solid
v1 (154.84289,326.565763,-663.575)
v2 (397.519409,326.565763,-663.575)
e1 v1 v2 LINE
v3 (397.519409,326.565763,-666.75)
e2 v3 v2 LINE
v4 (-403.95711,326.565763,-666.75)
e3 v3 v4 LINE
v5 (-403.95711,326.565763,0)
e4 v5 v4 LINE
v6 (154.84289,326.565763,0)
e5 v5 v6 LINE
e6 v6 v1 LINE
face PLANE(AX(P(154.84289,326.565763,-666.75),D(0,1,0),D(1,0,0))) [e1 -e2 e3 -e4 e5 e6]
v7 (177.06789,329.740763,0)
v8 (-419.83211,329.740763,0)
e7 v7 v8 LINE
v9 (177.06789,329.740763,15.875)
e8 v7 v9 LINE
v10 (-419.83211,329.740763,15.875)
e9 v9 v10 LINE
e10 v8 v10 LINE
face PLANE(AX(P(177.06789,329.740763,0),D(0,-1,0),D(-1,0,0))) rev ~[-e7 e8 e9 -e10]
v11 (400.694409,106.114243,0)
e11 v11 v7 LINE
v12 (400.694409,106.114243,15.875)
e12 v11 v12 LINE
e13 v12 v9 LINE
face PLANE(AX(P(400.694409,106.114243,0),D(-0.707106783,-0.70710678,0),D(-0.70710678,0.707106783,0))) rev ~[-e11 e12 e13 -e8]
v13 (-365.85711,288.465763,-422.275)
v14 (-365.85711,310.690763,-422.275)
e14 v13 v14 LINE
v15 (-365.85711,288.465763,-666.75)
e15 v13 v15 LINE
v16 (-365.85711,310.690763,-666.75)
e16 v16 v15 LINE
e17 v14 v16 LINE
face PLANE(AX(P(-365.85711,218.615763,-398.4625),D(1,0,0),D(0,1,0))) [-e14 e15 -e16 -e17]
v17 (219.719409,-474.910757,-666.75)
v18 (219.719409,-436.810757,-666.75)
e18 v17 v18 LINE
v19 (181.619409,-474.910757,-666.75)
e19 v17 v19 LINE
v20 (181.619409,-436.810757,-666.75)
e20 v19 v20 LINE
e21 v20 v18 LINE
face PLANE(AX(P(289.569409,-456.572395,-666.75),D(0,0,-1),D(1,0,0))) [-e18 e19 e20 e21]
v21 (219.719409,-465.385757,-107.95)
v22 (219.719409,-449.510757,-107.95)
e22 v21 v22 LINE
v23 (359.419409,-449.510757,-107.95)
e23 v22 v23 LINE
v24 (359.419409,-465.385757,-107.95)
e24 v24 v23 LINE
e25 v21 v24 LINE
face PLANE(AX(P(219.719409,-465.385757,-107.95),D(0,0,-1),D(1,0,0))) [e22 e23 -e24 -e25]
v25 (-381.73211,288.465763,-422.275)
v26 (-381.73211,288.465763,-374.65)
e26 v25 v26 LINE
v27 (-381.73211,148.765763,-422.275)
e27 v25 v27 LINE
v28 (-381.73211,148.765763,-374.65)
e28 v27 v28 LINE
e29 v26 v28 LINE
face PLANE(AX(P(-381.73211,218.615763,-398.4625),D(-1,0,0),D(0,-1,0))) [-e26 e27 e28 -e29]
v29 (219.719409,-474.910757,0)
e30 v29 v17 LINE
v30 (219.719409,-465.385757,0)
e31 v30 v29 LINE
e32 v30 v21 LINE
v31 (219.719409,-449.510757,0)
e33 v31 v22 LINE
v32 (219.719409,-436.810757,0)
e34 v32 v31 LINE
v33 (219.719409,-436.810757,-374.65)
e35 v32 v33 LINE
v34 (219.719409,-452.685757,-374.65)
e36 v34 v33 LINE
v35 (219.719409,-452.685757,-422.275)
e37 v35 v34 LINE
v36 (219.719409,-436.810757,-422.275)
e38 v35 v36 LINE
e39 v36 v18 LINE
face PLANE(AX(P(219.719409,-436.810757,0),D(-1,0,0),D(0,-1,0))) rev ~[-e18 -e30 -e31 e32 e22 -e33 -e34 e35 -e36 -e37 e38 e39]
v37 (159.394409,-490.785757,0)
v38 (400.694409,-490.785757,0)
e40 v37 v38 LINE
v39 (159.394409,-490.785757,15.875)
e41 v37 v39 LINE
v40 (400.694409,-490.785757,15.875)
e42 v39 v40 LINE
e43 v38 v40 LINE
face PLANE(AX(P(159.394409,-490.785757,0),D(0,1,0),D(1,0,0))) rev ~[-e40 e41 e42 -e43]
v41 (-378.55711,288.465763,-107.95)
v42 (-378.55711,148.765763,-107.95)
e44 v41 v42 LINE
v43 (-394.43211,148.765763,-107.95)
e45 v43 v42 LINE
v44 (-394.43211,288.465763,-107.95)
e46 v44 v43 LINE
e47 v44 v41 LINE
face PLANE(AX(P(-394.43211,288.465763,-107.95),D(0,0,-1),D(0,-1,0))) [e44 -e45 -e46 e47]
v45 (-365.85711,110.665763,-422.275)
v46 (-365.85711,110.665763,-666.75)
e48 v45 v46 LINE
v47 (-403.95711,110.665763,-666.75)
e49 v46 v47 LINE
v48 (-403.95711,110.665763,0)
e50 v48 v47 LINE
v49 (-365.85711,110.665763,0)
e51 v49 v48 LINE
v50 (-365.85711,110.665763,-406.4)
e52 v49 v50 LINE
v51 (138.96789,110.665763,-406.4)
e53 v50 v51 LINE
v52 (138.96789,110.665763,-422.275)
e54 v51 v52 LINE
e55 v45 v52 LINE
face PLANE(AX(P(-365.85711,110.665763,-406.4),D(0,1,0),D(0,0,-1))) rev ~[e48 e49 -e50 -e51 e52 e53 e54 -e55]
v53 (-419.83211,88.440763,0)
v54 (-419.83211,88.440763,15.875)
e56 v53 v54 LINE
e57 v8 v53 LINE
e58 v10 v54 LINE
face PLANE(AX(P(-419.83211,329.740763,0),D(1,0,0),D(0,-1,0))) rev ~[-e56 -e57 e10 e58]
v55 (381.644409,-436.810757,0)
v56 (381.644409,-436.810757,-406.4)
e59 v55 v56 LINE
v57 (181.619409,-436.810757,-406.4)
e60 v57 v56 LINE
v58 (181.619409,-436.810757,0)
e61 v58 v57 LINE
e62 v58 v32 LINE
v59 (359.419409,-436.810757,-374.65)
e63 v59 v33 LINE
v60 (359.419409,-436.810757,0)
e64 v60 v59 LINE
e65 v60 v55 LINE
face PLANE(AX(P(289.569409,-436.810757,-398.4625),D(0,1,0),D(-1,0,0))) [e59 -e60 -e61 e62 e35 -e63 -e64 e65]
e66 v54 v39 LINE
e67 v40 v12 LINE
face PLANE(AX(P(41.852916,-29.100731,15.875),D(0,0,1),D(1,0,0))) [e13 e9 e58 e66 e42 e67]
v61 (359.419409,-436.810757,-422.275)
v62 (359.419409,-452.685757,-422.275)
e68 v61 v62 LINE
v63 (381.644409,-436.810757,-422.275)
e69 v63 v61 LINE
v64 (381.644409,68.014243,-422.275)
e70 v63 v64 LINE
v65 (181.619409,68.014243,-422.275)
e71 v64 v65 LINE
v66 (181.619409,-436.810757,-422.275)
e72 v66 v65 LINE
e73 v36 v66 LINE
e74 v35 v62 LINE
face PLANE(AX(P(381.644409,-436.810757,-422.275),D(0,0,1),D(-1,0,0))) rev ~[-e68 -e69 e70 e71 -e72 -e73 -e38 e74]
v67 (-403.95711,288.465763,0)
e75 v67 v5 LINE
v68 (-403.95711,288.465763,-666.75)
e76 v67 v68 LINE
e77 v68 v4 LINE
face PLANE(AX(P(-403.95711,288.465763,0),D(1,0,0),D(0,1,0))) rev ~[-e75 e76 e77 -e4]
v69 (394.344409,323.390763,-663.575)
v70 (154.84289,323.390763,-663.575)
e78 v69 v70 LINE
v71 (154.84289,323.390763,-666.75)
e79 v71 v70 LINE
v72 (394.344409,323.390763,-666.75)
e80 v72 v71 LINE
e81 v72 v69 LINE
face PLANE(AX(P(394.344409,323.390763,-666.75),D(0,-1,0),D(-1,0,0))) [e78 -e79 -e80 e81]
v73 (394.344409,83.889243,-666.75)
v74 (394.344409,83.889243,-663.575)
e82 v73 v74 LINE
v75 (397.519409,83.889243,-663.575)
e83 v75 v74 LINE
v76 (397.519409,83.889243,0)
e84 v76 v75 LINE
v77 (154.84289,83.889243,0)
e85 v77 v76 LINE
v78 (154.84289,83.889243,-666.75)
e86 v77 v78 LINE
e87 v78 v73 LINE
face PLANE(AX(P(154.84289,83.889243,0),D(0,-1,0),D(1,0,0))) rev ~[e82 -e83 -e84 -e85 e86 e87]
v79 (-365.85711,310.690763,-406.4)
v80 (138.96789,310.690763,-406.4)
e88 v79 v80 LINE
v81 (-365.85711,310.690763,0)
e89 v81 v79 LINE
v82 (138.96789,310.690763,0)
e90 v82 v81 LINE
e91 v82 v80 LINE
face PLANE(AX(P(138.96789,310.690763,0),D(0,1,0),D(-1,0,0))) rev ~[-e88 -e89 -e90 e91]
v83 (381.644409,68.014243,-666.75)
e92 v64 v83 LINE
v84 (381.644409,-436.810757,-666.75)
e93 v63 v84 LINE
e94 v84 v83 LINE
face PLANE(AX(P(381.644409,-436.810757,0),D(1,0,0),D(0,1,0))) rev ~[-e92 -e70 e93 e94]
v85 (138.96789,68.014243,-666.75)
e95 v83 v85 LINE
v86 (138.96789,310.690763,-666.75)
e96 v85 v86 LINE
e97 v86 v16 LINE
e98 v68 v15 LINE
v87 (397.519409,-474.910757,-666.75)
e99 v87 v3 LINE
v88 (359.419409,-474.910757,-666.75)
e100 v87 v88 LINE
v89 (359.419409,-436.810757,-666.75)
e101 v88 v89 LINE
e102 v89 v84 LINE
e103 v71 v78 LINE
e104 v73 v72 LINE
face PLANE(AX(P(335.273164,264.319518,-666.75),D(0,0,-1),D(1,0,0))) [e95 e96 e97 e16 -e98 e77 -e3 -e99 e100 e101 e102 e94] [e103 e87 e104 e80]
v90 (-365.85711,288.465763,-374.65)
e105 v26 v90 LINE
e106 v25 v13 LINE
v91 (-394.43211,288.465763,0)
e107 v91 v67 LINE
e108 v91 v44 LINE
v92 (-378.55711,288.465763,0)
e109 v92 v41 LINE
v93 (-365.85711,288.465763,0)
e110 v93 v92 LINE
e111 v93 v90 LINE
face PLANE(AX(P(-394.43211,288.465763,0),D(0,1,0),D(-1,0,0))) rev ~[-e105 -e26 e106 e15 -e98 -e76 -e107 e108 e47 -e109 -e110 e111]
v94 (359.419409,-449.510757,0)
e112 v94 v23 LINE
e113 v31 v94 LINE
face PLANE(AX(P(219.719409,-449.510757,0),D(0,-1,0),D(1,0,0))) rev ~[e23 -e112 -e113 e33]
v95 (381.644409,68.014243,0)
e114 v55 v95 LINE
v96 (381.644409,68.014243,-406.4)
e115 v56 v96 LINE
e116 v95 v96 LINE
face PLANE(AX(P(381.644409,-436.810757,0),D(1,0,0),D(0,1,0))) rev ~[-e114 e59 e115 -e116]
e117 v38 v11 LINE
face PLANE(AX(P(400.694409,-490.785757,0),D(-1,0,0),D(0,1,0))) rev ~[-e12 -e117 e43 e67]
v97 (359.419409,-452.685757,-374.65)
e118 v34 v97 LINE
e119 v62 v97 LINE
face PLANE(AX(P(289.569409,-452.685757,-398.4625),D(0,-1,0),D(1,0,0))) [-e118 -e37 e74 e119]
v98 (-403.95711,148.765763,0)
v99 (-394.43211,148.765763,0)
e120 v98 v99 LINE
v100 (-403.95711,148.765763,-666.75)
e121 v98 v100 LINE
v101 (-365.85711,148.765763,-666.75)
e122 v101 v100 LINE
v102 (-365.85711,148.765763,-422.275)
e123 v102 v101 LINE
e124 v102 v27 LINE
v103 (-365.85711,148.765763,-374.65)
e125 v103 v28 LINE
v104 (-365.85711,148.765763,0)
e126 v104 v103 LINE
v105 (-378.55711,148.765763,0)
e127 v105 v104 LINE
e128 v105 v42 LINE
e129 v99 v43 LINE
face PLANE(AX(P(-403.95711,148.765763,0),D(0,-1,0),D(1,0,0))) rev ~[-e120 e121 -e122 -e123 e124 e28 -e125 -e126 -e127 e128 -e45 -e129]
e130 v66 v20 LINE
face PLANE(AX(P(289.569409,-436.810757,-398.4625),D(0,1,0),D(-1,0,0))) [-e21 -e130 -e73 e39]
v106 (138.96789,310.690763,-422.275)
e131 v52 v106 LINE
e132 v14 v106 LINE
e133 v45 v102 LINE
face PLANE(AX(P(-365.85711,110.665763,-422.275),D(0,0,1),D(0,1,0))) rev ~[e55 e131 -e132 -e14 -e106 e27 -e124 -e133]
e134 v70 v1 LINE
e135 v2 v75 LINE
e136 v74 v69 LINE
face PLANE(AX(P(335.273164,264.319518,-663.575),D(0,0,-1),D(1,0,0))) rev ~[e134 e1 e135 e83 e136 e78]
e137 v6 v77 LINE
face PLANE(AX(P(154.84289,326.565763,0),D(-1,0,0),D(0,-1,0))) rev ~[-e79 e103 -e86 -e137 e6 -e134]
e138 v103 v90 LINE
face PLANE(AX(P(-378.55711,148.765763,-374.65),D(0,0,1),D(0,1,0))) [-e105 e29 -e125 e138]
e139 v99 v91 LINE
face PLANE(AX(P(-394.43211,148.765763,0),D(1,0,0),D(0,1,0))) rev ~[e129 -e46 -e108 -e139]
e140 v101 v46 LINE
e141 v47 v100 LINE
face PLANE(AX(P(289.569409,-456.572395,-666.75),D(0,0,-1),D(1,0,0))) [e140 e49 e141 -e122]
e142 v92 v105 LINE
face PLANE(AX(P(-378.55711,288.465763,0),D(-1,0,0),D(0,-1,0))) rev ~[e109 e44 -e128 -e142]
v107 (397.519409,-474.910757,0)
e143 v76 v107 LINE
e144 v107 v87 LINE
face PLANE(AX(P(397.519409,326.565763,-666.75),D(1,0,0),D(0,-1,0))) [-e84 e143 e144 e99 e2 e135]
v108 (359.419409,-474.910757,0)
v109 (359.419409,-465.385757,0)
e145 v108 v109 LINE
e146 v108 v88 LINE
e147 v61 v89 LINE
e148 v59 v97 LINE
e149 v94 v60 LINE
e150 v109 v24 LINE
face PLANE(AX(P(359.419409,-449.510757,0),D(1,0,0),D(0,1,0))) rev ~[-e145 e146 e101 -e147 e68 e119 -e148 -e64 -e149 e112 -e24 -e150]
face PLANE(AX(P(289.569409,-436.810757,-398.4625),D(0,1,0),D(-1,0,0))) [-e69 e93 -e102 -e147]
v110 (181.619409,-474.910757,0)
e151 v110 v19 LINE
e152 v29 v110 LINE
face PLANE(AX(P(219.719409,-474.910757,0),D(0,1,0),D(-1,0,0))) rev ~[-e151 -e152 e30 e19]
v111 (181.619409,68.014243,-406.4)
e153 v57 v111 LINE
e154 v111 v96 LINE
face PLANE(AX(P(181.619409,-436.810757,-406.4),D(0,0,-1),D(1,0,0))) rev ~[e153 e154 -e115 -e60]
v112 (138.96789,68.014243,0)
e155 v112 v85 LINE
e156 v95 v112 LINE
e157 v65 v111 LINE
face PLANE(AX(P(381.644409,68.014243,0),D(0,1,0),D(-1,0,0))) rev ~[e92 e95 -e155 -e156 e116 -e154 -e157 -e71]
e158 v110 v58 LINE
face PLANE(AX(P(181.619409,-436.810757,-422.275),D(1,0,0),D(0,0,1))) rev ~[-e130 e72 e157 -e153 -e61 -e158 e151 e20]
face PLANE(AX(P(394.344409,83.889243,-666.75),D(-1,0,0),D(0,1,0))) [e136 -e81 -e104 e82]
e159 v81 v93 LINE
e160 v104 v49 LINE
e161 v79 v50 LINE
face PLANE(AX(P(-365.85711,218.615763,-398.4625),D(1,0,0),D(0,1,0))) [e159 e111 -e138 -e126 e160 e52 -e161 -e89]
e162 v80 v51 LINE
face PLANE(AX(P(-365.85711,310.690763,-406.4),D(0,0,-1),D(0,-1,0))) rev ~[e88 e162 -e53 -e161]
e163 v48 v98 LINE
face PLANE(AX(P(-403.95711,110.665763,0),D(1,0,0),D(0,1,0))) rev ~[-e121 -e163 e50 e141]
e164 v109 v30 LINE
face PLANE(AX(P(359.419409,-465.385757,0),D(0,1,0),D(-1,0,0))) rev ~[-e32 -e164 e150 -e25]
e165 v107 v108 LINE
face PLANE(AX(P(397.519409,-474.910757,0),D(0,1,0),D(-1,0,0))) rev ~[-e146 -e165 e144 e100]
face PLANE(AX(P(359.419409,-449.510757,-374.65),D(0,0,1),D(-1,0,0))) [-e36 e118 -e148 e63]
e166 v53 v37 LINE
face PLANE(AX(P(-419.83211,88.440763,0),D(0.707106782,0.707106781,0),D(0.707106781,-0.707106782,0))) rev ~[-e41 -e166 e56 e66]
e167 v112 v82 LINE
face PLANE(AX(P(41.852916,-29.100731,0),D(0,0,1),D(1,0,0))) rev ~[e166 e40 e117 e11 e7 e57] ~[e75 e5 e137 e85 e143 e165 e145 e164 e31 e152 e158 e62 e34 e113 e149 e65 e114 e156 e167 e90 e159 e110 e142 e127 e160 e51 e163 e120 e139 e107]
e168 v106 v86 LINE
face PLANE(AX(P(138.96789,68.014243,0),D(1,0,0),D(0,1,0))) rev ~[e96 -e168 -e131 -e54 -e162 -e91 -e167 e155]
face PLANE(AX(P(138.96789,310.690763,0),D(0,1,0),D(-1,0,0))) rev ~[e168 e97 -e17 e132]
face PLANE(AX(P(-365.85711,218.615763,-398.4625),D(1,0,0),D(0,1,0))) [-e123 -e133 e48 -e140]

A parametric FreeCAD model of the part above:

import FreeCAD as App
import Part
import Sketcher
Q = App.Units.Quantity

doc = App.newDocument("Part")
body = doc.addObject("PartDesign::Body", "Body")

# Sketch on XY plane
sketch1 = body.newObject("Sketcher::SketchObject", "Sketch")
sketch1.AttachmentSupport = (doc.getObject("XY_Plane"), [""])
sketch1.MapMode = "FlatFace"
sketch1.addGeometry(Part.LineSegment(App.Vector(177, 330, 0), App.Vector(-420, 330, 0)), False)
sketch1.addGeometry(Part.LineSegment(App.Vector(-420, 330, 0), App.Vector(-420, 88, 0)), False)
sketch1.addGeometry(Part.LineSegment(App.Vector(-420, 88, 0), App.Vector(159, -491, 0)), False)
sketch1.addGeometry(Part.LineSegment(App.Vector(159, -491, 0), App.Vector(401, -491, 0)), False)
sketch1.addGeometry(Part.LineSegment(App.Vector(401, -491, 0), App.Vector(401, 106, 0)), False)
sketch1.addGeometry(Part.LineSegment(App.Vector(401, 106, 0), App.Vector(177, 330, 0)), False)
sketch1.addConstraint(Sketcher.Constraint("Coincident", 0, 2, 1, 1))
sketch1.addConstraint(Sketcher.Constraint("Coincident", 1, 2, 2, 1))
sketch1.addConstraint(Sketcher.Constraint("Coincident", 2, 2, 3, 1))
sketch1.addConstraint(Sketcher.Constraint("Coincident", 3, 2, 4, 1))
sketch1.addConstraint(Sketcher.Constraint("Coincident", 4, 2, 5, 1))
sketch1.addConstraint(Sketcher.Constraint("Coincident", 5, 2, 0, 1))
sketch1.addConstraint(Sketcher.Constraint("Horizontal", 0))
sketch1.addConstraint(Sketcher.Constraint("Vertical", 1))
sketch1.addConstraint(Sketcher.Constraint("Horizontal", 3))
sketch1.addConstraint(Sketcher.Constraint("Vertical", 4))
sketch1.addConstraint(Sketcher.Constraint("Parallel", 2, 5))
sketch1.addConstraint(Sketcher.Constraint("Equal", 3, 1))
sketch1.addConstraint(Sketcher.Constraint("Equal", 0, 4))
sketch1.addConstraint(Sketcher.Constraint("DistanceX", 0, 2, 0, 1, Q("23.5 in")))
sketch1.addConstraint(Sketcher.Constraint("DistanceX", 3, 1, 3, 2, Q("9.5 in")))
sketch1.addConstraint(Sketcher.Constraint("Distance", 2, Q("32.25 in")))
sketch1.addConstraint(Sketcher.Constraint("DistanceX", 0, 2, -1, 1, 419.83211))
sketch1.addConstraint(Sketcher.Constraint("DistanceY", -1, 1, 0, 2, 329.740763))
pad1 = body.newObject("PartDesign::Pad", "Pad")
pad1.Profile = sketch1
pad1.Length = Q("0.625 in")

# Sketch on XY plane
sketch2 = body.newObject("Sketcher::SketchObject", "Sketch001")
sketch2.AttachmentSupport = (doc.getObject("XY_Plane"), [""])
sketch2.MapMode = "FlatFace"
sketch2.addGeometry(Part.LineSegment(App.Vector(398, -475, 0), App.Vector(359, -475, 0)), False)
sketch2.addGeometry(Part.LineSegment(App.Vector(359, -475, 0), App.Vector(359, -465, 0)), False)
sketch2.addGeometry(Part.LineSegment(App.Vector(359, -465, 0), App.Vector(220, -465, 0)), False)
sketch2.addGeometry(Part.LineSegment(App.Vector(220, -465, 0), App.Vector(220, -475, 0)), False)
sketch2.addGeometry(Part.LineSegment(App.Vector(220, -475, 0), App.Vector(182, -475, 0)), False)
sketch2.addGeometry(Part.LineSegment(App.Vector(182, -475, 0), App.Vector(182, -437, 0)), False)
sketch2.addGeometry(Part.LineSegment(App.Vector(182, -437, 0), App.Vector(220, -437, 0)), False)
sketch2.addGeometry(Part.LineSegment(App.Vector(220, -437, 0), App.Vector(220, -450, 0)), False)
sketch2.addGeometry(Part.LineSegment(App.Vector(220, -450, 0), App.Vector(359, -450, 0)), False)
sketch2.addGeometry(Part.LineSegment(App.Vector(359, -450, 0), App.Vector(359, -437, 0)), False)
sketch2.addGeometry(Part.LineSegment(App.Vector(359, -437, 0), App.Vector(382, -437, 0)), False)
sketch2.addGeometry(Part.LineSegment(App.Vector(382, -437, 0), App.Vector(382, 68, 0)), False)
sketch2.addGeometry(Part.LineSegment(App.Vector(382, 68, 0), App.Vector(139, 68, 0)), False)
sketch2.addGeometry(Part.LineSegment(App.Vector(139, 68, 0), App.Vector(139, 311, 0)), False)
sketch2.addGeometry(Part.LineSegment(App.Vector(139, 311, 0), App.Vector(-366, 311, 0)), False)
sketch2.addGeometry(Part.LineSegment(App.Vector(-366, 311, 0), App.Vector(-366, 288, 0)), False)
sketch2.addGeometry(Part.LineSegment(App.Vector(-366, 288, 0), App.Vector(-379, 288, 0)), False)
sketch2.addGeometry(Part.LineSegment(App.Vector(-379, 288, 0), App.Vector(-379, 149, 0)), False)
sketch2.addGeometry(Part.LineSegment(App.Vector(-379, 149, 0), App.Vector(-366, 149, 0)), False)
sketch2.addGeometry(Part.LineSegment(App.Vector(-366, 149, 0), App.Vector(-366, 111, 0)), False)
sketch2.addGeometry(Part.LineSegment(App.Vector(-366, 111, 0), App.Vector(-404, 111, 0)), False)
sketch2.addGeometry(Part.LineSegment(App.Vector(-404, 111, 0), App.Vector(-404, 149, 0)), False)
sketch2.addGeometry(Part.LineSegment(App.Vector(-404, 149, 0), App.Vector(-394, 149, 0)), False)
sketch2.addGeometry(Part.LineSegment(App.Vector(-394, 149, 0), App.Vector(-394, 288, 0)), False)
sketch2.addGeometry(Part.LineSegment(App.Vector(-394, 288, 0), App.Vector(-404, 288, 0)), False)
sketch2.addGeometry(Part.LineSegment(App.Vector(-404, 288, 0), App.Vector(-404, 327, 0)), False)
sketch2.addGeometry(Part.LineSegment(App.Vector(-404, 327, 0), App.Vector(155, 327, 0)), False)
sketch2.addGeometry(Part.LineSegment(App.Vector(155, 327, 0), App.Vector(155, 84, 0)), False)
sketch2.addGeometry(Part.LineSegment(App.Vector(155, 84, 0), App.Vector(398, 84, 0)), False)
sketch2.addGeometry(Part.LineSegment(App.Vector(398, 84, 0), App.Vector(398, -475, 0)), False)
sketch2.addConstraint(Sketcher.Constraint("Coincident", 0, 2, 1, 1))
sketch2.addConstraint(Sketcher.Constraint("Coincident", 1, 2, 2, 1))
sketch2.addConstraint(Sketcher.Constraint("Coincident", 2, 2, 3, 1))
sketch2.addConstraint(Sketcher.Constraint("Coincident", 3, 2, 4, 1))
sketch2.addConstraint(Sketcher.Constraint("Coincident", 4, 2, 5, 1))
sketch2.addConstraint(Sketcher.Constraint("Coincident", 5, 2, 6, 1))
sketch2.addConstraint(Sketcher.Constraint("Coincident", 6, 2, 7, 1))
sketch2.addConstraint(Sketcher.Constraint("Coincident", 7, 2, 8, 1))
sketch2.addConstraint(Sketcher.Constraint("Coincident", 8, 2, 9, 1))
sketch2.addConstraint(Sketcher.Constraint("Coincident", 9, 2, 10, 1))
sketch2.addConstraint(Sketcher.Constraint("Coincident", 10, 2, 11, 1))
sketch2.addConstraint(Sketcher.Constraint("Coincident", 11, 2, 12, 1))
sketch2.addConstraint(Sketcher.Constraint("Coincident", 12, 2, 13, 1))
sketch2.addConstraint(Sketcher.Constraint("Coincident", 13, 2, 14, 1))
sketch2.addConstraint(Sketcher.Constraint("Coincident", 14, 2, 15, 1))
sketch2.addConstraint(Sketcher.Constraint("Coincident", 15, 2, 16, 1))
sketch2.addConstraint(Sketcher.Constraint("Coincident", 16, 2, 17, 1))
sketch2.addConstraint(Sketcher.Constraint("Coincident", 17, 2, 18, 1))
sketch2.addConstraint(Sketcher.Constraint("Coincident", 18, 2, 19, 1))
sketch2.addConstraint(Sketcher.Constraint("Coincident", 19, 2, 20, 1))
sketch2.addConstraint(Sketcher.Constraint("Coincident", 20, 2, 21, 1))
sketch2.addConstraint(Sketcher.Constraint("Coincident", 21, 2, 22, 1))
sketch2.addConstraint(Sketcher.Constraint("Coincident", 22, 2, 23, 1))
sketch2.addConstraint(Sketcher.Constraint("Coincident", 23, 2, 24, 1))
sketch2.addConstraint(Sketcher.Constraint("Coincident", 24, 2, 25, 1))
sketch2.addConstraint(Sketcher.Constraint("Coincident", 25, 2, 26, 1))
sketch2.addConstraint(Sketcher.Constraint("Coincident", 26, 2, 27, 1))
sketch2.addConstraint(Sketcher.Constraint("Coincident", 27, 2, 28, 1))
sketch2.addConstraint(Sketcher.Constraint("Coincident", 28, 2, 29, 1))
sketch2.addConstraint(Sketcher.Constraint("Coincident", 29, 2, 0, 1))
sketch2.addConstraint(Sketcher.Constraint("Horizontal", 0))
sketch2.addConstraint(Sketcher.Constraint("Vertical", 1))
sketch2.addConstraint(Sketcher.Constraint("Horizontal", 2))
sketch2.addConstraint(Sketcher.Constraint("Vertical", 3))
sketch2.addConstraint(Sketcher.Constraint("Horizontal", 4))
sketch2.addConstraint(Sketcher.Constraint("Vertical", 5))
sketch2.addConstraint(Sketcher.Constraint("Horizontal", 6))
sketch2.addConstraint(Sketcher.Constraint("Vertical", 7))
sketch2.addConstraint(Sketcher.Constraint("Horizontal", 8))
sketch2.addConstraint(Sketcher.Constraint("Vertical", 9))
sketch2.addConstraint(Sketcher.Constraint("Horizontal", 10))
sketch2.addConstraint(Sketcher.Constraint("Vertical", 11))
sketch2.addConstraint(Sketcher.Constraint("Horizontal", 12))
sketch2.addConstraint(Sketcher.Constraint("Vertical", 13))
sketch2.addConstraint(Sketcher.Constraint("Horizontal", 14))
sketch2.addConstraint(Sketcher.Constraint("Vertical", 15))
sketch2.addConstraint(Sketcher.Constraint("Horizontal", 16))
sketch2.addConstraint(Sketcher.Constraint("Vertical", 17))
sketch2.addConstraint(Sketcher.Constraint("Horizontal", 18))
sketch2.addConstraint(Sketcher.Constraint("Vertical", 19))
sketch2.addConstraint(Sketcher.Constraint("Horizontal", 20))
sketch2.addConstraint(Sketcher.Constraint("Vertical", 21))
sketch2.addConstraint(Sketcher.Constraint("Horizontal", 22))
sketch2.addConstraint(Sketcher.Constraint("Vertical", 23))
sketch2.addConstraint(Sketcher.Constraint("Horizontal", 24))
sketch2.addConstraint(Sketcher.Constraint("Vertical", 25))
sketch2.addConstraint(Sketcher.Constraint("Horizontal", 26))
sketch2.addConstraint(Sketcher.Constraint("Vertical", 27))
sketch2.addConstraint(Sketcher.Constraint("Horizontal", 28))
sketch2.addConstraint(Sketcher.Constraint("Vertical", 29))
sketch2.addConstraint(Sketcher.Constraint("Horizontal", 0, 2, 3, 2))
sketch2.addConstraint(Sketcher.Constraint("Horizontal", 6, 2, 9, 2))
sketch2.addConstraint(Sketcher.Constraint("Horizontal", 18, 2, 21, 2))
sketch2.addConstraint(Sketcher.Constraint("Horizontal", 16, 2, 23, 2))
sketch2.addConstraint(Sketcher.Constraint("Vertical", 3, 2, 6, 2))
sketch2.addConstraint(Sketcher.Constraint("Vertical", 1, 2, 8, 2))
sketch2.addConstraint(Sketcher.Constraint("Vertical", 15, 2, 18, 2))
sketch2.addConstraint(Sketcher.Constraint("Vertical", 21, 2, 24, 2))
sketch2.addConstraint(Sketcher.Constraint("Equal", 0, 4))
sketch2.addConstraint(Sketcher.Constraint("Equal", 6, 20))
sketch2.addConstraint(Sketcher.Constraint("Equal", 12, 28))
sketch2.addConstraint(Sketcher.Constraint("Equal", 24, 1))
sketch2.addConstraint(Sketcher.Constraint("Equal", 20, 5))
sketch2.addConstraint(Sketcher.Constraint("Equal", 18, 7))
sketch2.addConstraint(Sketcher.Constraint("Equal", 14, 11))
sketch2.addConstraint(Sketcher.Constraint("Equal", 28, 13))
sketch2.addConstraint(Sketcher.Constraint("Equal", 10, 15))
sketch2.addConstraint(Sketcher.Constraint("Equal", 8, 17))
sketch2.addConstraint(Sketcher.Constraint("Equal", 5, 19))
sketch2.addConstraint(Sketcher.Constraint("Equal", 21, 25))
sketch2.addConstraint(Sketcher.Constraint("Equal", 13, 27))
sketch2.addConstraint(Sketcher.Constraint("DistanceX", 26, 1, 26, 2, Q("22 in")))
sketch2.addConstraint(Sketcher.Constraint("DistanceX", 0, 2, 0, 1, Q("1.5 in")))
sketch2.addConstraint(Sketcher.Constraint("DistanceX", 2, 2, 2, 1, Q("5.5 in")))
sketch2.addConstraint(Sketcher.Constraint("DistanceX", 16, 2, 16, 1, Q("0.5 in")))
sketch2.addConstraint(Sketcher.Constraint("DistanceY", 1, 2, 11, 2, Q("21 in")))
sketch2.addConstraint(Sketcher.Constraint("DistanceX", 10, 1, 10, 2, Q("0.875 in")))
sketch2.addConstraint(Sketcher.Constraint("DistanceX", 12, 2, 12, 1, 242.676519))
sketch2.addConstraint(Sketcher.Constraint("DistanceX", -1, 1, 0, 2, 359.419409))
sketch2.addConstraint(Sketcher.Constraint("DistanceY", 0, 2, -1, 1, 474.910757))
pad2 = body.newObject("PartDesign::Pad", "Pad001")
pad2.Profile = sketch2
pad2.Length = Q("26.25 in")
pad2.Reversed = True

# Sketch on YZ plane
sketch3 = body.newObject("Sketcher::SketchObject", "Sketch002")
sketch3.AttachmentSupport = (doc.getObject("YZ_Plane"), [""])
sketch3.MapMode = "FlatFace"
sketch3.AttachmentOffset = App.Placement(App.Vector(0, 0, -394.43211), App.Rotation())
sketch3.addGeometry(Part.LineSegment(App.Vector(288, -108, 0), App.Vector(288, -375, 0)), False)
sketch3.addGeometry(Part.LineSegment(App.Vector(288, -375, 0), App.Vector(149, -375, 0)), False)
sketch3.addGeometry(Part.LineSegment(App.Vector(149, -375, 0), App.Vector(149, -108, 0)), False)
sketch3.addGeometry(Part.LineSegment(App.Vector(149, -108, 0), App.Vector(288, -108, 0)), False)
sketch3.addGeometry(Part.LineSegment(App.Vector(288, -422, 0), App.Vector(288, -667, 0)), False)
sketch3.addGeometry(Part.LineSegment(App.Vector(288, -667, 0), App.Vector(149, -667, 0)), False)
sketch3.addGeometry(Part.LineSegment(App.Vector(149, -667, 0), App.Vector(149, -422, 0)), False)
sketch3.addGeometry(Part.LineSegment(App.Vector(149, -422, 0), App.Vector(288, -422, 0)), False)
sketch3.addConstraint(Sketcher.Constraint("Coincident", 0, 2, 1, 1))
sketch3.addConstraint(Sketcher.Constraint("Coincident", 1, 2, 2, 1))
sketch3.addConstraint(Sketcher.Constraint("Coincident", 2, 2, 3, 1))
sketch3.addConstraint(Sketcher.Constraint("Coincident", 3, 2, 0, 1))
sketch3.addConstraint(Sketcher.Constraint("Coincident", 4, 2, 5, 1))
sketch3.addConstraint(Sketcher.Constraint("Coincident", 5, 2, 6, 1))
sketch3.addConstraint(Sketcher.Constraint("Coincident", 6, 2, 7, 1))
sketch3.addConstraint(Sketcher.Constraint("Coincident", 7, 2, 4, 1))
sketch3.addConstraint(Sketcher.Constraint("Vertical", 0))
sketch3.addConstraint(Sketcher.Constraint("Horizontal", 1))
sketch3.addConstraint(Sketcher.Constraint("Vertical", 2))
sketch3.addConstraint(Sketcher.Constraint("Horizontal", 3))
sketch3.addConstraint(Sketcher.Constraint("Vertical", 4))
sketch3.addConstraint(Sketcher.Constraint("Horizontal", 5))
sketch3.addConstraint(Sketcher.Constraint("Vertical", 6))
sketch3.addConstraint(Sketcher.Constraint("Horizontal", 7))
sketch3.addConstraint(Sketcher.Constraint("Vertical", 3, 2, 4, 2))
sketch3.addConstraint(Sketcher.Constraint("Vertical", 2, 2, 5, 2))
sketch3.addConstraint(Sketcher.Constraint("DistanceX", 1, 2, 1, 1, Q("5.5 in")))
sketch3.addConstraint(Sketcher.Constraint("DistanceY", 0, 2, 0, 1, Q("10.5 in")))
sketch3.addConstraint(Sketcher.Constraint("DistanceY", 4, 2, 3, 2, Q("22 in")))
sketch3.addConstraint(Sketcher.Constraint("DistanceY", 4, 2, 4, 1, Q("9.625 in")))
sketch3.addConstraint(Sketcher.Constraint("DistanceY", 0, 2, -1, 1, Q("14.75 in")))
sketch3.addConstraint(Sketcher.Constraint("DistanceX", -1, 1, 0, 2, 288.465763))
pocket1 = body.newObject("PartDesign::Pocket", "Pocket")
pocket1.Profile = sketch3
pocket1.Length = Q("1 in")
pocket1.Reversed = True

# Sketch on YZ plane
sketch4 = body.newObject("Sketcher::SketchObject", "Sketch003")
sketch4.AttachmentSupport = (doc.getObject("YZ_Plane"), [""])
sketch4.MapMode = "FlatFace"
sketch4.AttachmentOffset = App.Placement(App.Vector(0, 0, -378.55711), App.Rotation())
sketch4.addGeometry(Part.LineSegment(App.Vector(149, -375, 0), App.Vector(149, -422, 0)), False)
sketch4.addGeometry(Part.LineSegment(App.Vector(149, -422, 0), App.Vector(288, -422, 0)), False)
sketch4.addGeometry(Part.LineSegment(App.Vector(288, -422, 0), App.Vector(288, -375, 0)), False)
sketch4.addGeometry(Part.LineSegment(App.Vector(288, -375, 0), App.Vector(149, -375, 0)), False)
sketch4.addConstraint(Sketcher.Constraint("Coincident", 0, 2, 1, 1))
sketch4.addConstraint(Sketcher.Constraint("Coincident", 1, 2, 2, 1))
sketch4.addConstraint(Sketcher.Constraint("Coincident", 2, 2, 3, 1))
sketch4.addConstraint(Sketcher.Constraint("Coincident", 3, 2, 0, 1))
sketch4.addConstraint(Sketcher.Constraint("Vertical", 0))
sketch4.addConstraint(Sketcher.Constraint("Horizontal", 1))
sketch4.addConstraint(Sketcher.Constraint("Vertical", 2))
sketch4.addConstraint(Sketcher.Constraint("Horizontal", 3))
sketch4.addConstraint(Sketcher.Constraint("DistanceX", 1, 1, 1, 2, Q("5.5 in")))
sketch4.addConstraint(Sketcher.Constraint("DistanceY", 0, 2, 0, 1, Q("1.875 in")))
sketch4.addConstraint(Sketcher.Constraint("DistanceY", 2, 2, -1, 1, Q("14.75 in")))
sketch4.addConstraint(Sketcher.Constraint("DistanceX", -1, 1, 0, 2, 148.765763))
pad3 = body.newObject("PartDesign::Pad", "Pad002")
pad3.Profile = sketch4
pad3.Length = Q("0.5 in")

# Sketch on YZ plane
sketch5 = body.newObject("Sketcher::SketchObject", "Sketch004")
sketch5.AttachmentSupport = (doc.getObject("YZ_Plane"), [""])
sketch5.MapMode = "FlatFace"
sketch5.AttachmentOffset = App.Placement(App.Vector(0, 0, -394.43211), App.Rotation())
sketch5.addGeometry(Part.LineSegment(App.Vector(288, -375, 0), App.Vector(288, -422, 0)), False)
sketch5.addGeometry(Part.LineSegment(App.Vector(288, -422, 0), App.Vector(149, -422, 0)), False)
sketch5.addGeometry(Part.LineSegment(App.Vector(149, -422, 0), App.Vector(149, -375, 0)), False)
sketch5.addGeometry(Part.LineSegment(App.Vector(149, -375, 0), App.Vector(288, -375, 0)), False)
sketch5.addConstraint(Sketcher.Constraint("Coincident", 0, 2, 1, 1))
sketch5.addConstraint(Sketcher.Constraint("Coincident", 1, 2, 2, 1))
sketch5.addConstraint(Sketcher.Constraint("Coincident", 2, 2, 3, 1))
sketch5.addConstraint(Sketcher.Constraint("Coincident", 3, 2, 0, 1))
sketch5.addConstraint(Sketcher.Constraint("Vertical", 0))
sketch5.addConstraint(Sketcher.Constraint("Horizontal", 1))
sketch5.addConstraint(Sketcher.Constraint("Vertical", 2))
sketch5.addConstraint(Sketcher.Constraint("Horizontal", 3))
sketch5.addConstraint(Sketcher.Constraint("DistanceX", 1, 2, 1, 1, Q("5.5 in")))
sketch5.addConstraint(Sketcher.Constraint("DistanceY", 0, 2, 0, 1, Q("1.875 in")))
sketch5.addConstraint(Sketcher.Constraint("DistanceY", 2, 2, -1, 1, Q("14.75 in")))
sketch5.addConstraint(Sketcher.Constraint("DistanceX", -1, 1, 0, 2, 288.465763))
pocket2 = body.newObject("PartDesign::Pocket", "Pocket001")
pocket2.Profile = sketch5
pocket2.Length = Q("0.5 in")
pocket2.Reversed = True

# Sketch on XZ plane
sketch6 = body.newObject("Sketcher::SketchObject", "Sketch005")
sketch6.AttachmentSupport = (doc.getObject("XZ_Plane"), [""])
sketch6.MapMode = "FlatFace"
sketch6.AttachmentOffset = App.Placement(App.Vector(0, 0, 465.385757), App.Rotation())
sketch6.addGeometry(Part.LineSegment(App.Vector(220, -108, 0), App.Vector(220, -375, 0)), False)
sketch6.addGeometry(Part.LineSegment(App.Vector(220, -375, 0), App.Vector(359, -375, 0)), False)
sketch6.addGeometry(Part.LineSegment(App.Vector(359, -375, 0), App.Vector(359, -108, 0)), False)
sketch6.addGeometry(Part.LineSegment(App.Vector(359, -108, 0), App.Vector(220, -108, 0)), False)
sketch6.addGeometry(Part.LineSegment(App.Vector(220, -422, 0), App.Vector(220, -667, 0)), False)
sketch6.addGeometry(Part.LineSegment(App.Vector(220, -667, 0), App.Vector(359, -667, 0)), False)
sketch6.addGeometry(Part.LineSegment(App.Vector(359, -667, 0), App.Vector(359, -422, 0)), False)
sketch6.addGeometry(Part.LineSegment(App.Vector(359, -422, 0), App.Vector(220, -422, 0)), False)
sketch6.addConstraint(Sketcher.Constraint("Coincident", 0, 2, 1, 1))
sketch6.addConstraint(Sketcher.Constraint("Coincident", 1, 2, 2, 1))
sketch6.addConstraint(Sketcher.Constraint("Coincident", 2, 2, 3, 1))
sketch6.addConstraint(Sketcher.Constraint("Coincident", 3, 2, 0, 1))
sketch6.addConstraint(Sketcher.Constraint("Coincident", 4, 2, 5, 1))
sketch6.addConstraint(Sketcher.Constraint("Coincident", 5, 2, 6, 1))
sketch6.addConstraint(Sketcher.Constraint("Coincident", 6, 2, 7, 1))
sketch6.addConstraint(Sketcher.Constraint("Coincident", 7, 2, 4, 1))
sketch6.addConstraint(Sketcher.Constraint("Vertical", 0))
sketch6.addConstraint(Sketcher.Constraint("Horizontal", 1))
sketch6.addConstraint(Sketcher.Constraint("Vertical", 2))
sketch6.addConstraint(Sketcher.Constraint("Horizontal", 3))
sketch6.addConstraint(Sketcher.Constraint("Vertical", 4))
sketch6.addConstraint(Sketcher.Constraint("Horizontal", 5))
sketch6.addConstraint(Sketcher.Constraint("Vertical", 6))
sketch6.addConstraint(Sketcher.Constraint("Horizontal", 7))
sketch6.addConstraint(Sketcher.Constraint("Vertical", 3, 2, 4, 2))
sketch6.addConstraint(Sketcher.Constraint("Vertical", 2, 2, 5, 2))
sketch6.addConstraint(Sketcher.Constraint("DistanceX", 1, 1, 1, 2, Q("5.5 in")))
sketch6.addConstraint(Sketcher.Constraint("DistanceY", 0, 2, 0, 1, Q("10.5 in")))
sketch6.addConstraint(Sketcher.Constraint("DistanceY", 4, 2, 3, 2, Q("22 in")))
sketch6.addConstraint(Sketcher.Constraint("DistanceY", 4, 2, 4, 1, Q("9.625 in")))
sketch6.addConstraint(Sketcher.Constraint("DistanceY", 0, 2, -1, 1, Q("14.75 in")))
sketch6.addConstraint(Sketcher.Constraint("DistanceX", -1, 1, 0, 2, 219.719409))
pocket3 = body.newObject("PartDesign::Pocket", "Pocket002")
pocket3.Profile = sketch6
pocket3.Length = Q("1 in")

# Sketch on XZ plane
sketch7 = body.newObject("Sketcher::SketchObject", "Sketch006")
sketch7.AttachmentSupport = (doc.getObject("XZ_Plane"), [""])
sketch7.MapMode = "FlatFace"
sketch7.AttachmentOffset = App.Placement(App.Vector(0, 0, 449.510757), App.Rotation())
sketch7.addGeometry(Part.LineSegment(App.Vector(359, -375, 0), App.Vector(359, -422, 0)), False)
sketch7.addGeometry(Part.LineSegment(App.Vector(359, -422, 0), App.Vector(220, -422, 0)), False)
sketch7.addGeometry(Part.LineSegment(App.Vector(220, -422, 0), App.Vector(220, -375, 0)), False)
sketch7.addGeometry(Part.LineSegment(App.Vector(220, -375, 0), App.Vector(359, -375, 0)), False)
sketch7.addConstraint(Sketcher.Constraint("Coincident", 0, 2, 1, 1))
sketch7.addConstraint(Sketcher.Constraint("Coincident", 1, 2, 2, 1))
sketch7.addConstraint(Sketcher.Constraint("Coincident", 2, 2, 3, 1))
sketch7.addConstraint(Sketcher.Constraint("Coincident", 3, 2, 0, 1))
sketch7.addConstraint(Sketcher.Constraint("Vertical", 0))
sketch7.addConstraint(Sketcher.Constraint("Horizontal", 1))
sketch7.addConstraint(Sketcher.Constraint("Vertical", 2))
sketch7.addConstraint(Sketcher.Constraint("Horizontal", 3))
sketch7.addConstraint(Sketcher.Constraint("DistanceX", 1, 2, 1, 1, Q("5.5 in")))
sketch7.addConstraint(Sketcher.Constraint("DistanceY", 0, 2, 0, 1, Q("1.875 in")))
sketch7.addConstraint(Sketcher.Constraint("DistanceY", 2, 2, -1, 1, Q("14.75 in")))
sketch7.addConstraint(Sketcher.Constraint("DistanceX", -1, 1, 0, 2, 359.419409))
pad4 = body.newObject("PartDesign::Pad", "Pad003")
pad4.Profile = sketch7
pad4.Length = Q("0.5 in")
pad4.Reversed = True

# Sketch on XZ plane
sketch8 = body.newObject("Sketcher::SketchObject", "Sketch007")
sketch8.AttachmentSupport = (doc.getObject("XZ_Plane"), [""])
sketch8.MapMode = "FlatFace"
sketch8.AttachmentOffset = App.Placement(App.Vector(0, 0, 465.385757), App.Rotation())
sketch8.addGeometry(Part.LineSegment(App.Vector(220, -375, 0), App.Vector(220, -422, 0)), False)
sketch8.addGeometry(Part.LineSegment(App.Vector(220, -422, 0), App.Vector(359, -422, 0)), False)
sketch8.addGeometry(Part.LineSegment(App.Vector(359, -422, 0), App.Vector(359, -375, 0)), False)
sketch8.addGeometry(Part.LineSegment(App.Vector(359, -375, 0), App.Vector(220, -375, 0)), False)
sketch8.addConstraint(Sketcher.Constraint("Coincident", 0, 2, 1, 1))
sketch8.addConstraint(Sketcher.Constraint("Coincident", 1, 2, 2, 1))
sketch8.addConstraint(Sketcher.Constraint("Coincident", 2, 2, 3, 1))
sketch8.addConstraint(Sketcher.Constraint("Coincident", 3, 2, 0, 1))
sketch8.addConstraint(Sketcher.Constraint("Vertical", 0))
sketch8.addConstraint(Sketcher.Constraint("Horizontal", 1))
sketch8.addConstraint(Sketcher.Constraint("Vertical", 2))
sketch8.addConstraint(Sketcher.Constraint("Horizontal", 3))
sketch8.addConstraint(Sketcher.Constraint("DistanceX", 1, 1, 1, 2, Q("5.5 in")))
sketch8.addConstraint(Sketcher.Constraint("DistanceY", 0, 2, 0, 1, Q("1.875 in")))
sketch8.addConstraint(Sketcher.Constraint("DistanceY", 2, 2, -1, 1, Q("14.75 in")))
sketch8.addConstraint(Sketcher.Constraint("DistanceX", -1, 1, 0, 2, 219.719409))
pocket4 = body.newObject("PartDesign::Pocket", "Pocket003")
pocket4.Profile = sketch8
pocket4.Length = Q("0.5 in")

# Sketch on YZ plane
sketch9 = body.newObject("Sketcher::SketchObject", "Sketch008")
sketch9.AttachmentSupport = (doc.getObject("YZ_Plane"), [""])
sketch9.MapMode = "FlatFace"
sketch9.AttachmentOffset = App.Placement(App.Vector(0, 0, -365.85711), App.Rotation())
sketch9.addGeometry(Part.LineSegment(App.Vector(311, -422, 0), App.Vector(311, -406, 0)), False)
sketch9.addGeometry(Part.LineSegment(App.Vector(311, -406, 0), App.Vector(111, -406, 0)), False)
sketch9.addGeometry(Part.LineSegment(App.Vector(111, -406, 0), App.Vector(111, -422, 0)), False)
sketch9.addGeometry(Part.LineSegment(App.Vector(111, -422, 0), App.Vector(311, -422, 0)), False)
sketch9.addConstraint(Sketcher.Constraint("Coincident", 0, 2, 1, 1))
sketch9.addConstraint(Sketcher.Constraint("Coincident", 1, 2, 2, 1))
sketch9.addConstraint(Sketcher.Constraint("Coincident", 2, 2, 3, 1))
sketch9.addConstraint(Sketcher.Constraint("Coincident", 3, 2, 0, 1))
sketch9.addConstraint(Sketcher.Constraint("Vertical", 0))
sketch9.addConstraint(Sketcher.Constraint("Horizontal", 1))
sketch9.addConstraint(Sketcher.Constraint("Vertical", 2))
sketch9.addConstraint(Sketcher.Constraint("Horizontal", 3))
sketch9.addConstraint(Sketcher.Constraint("DistanceY", 0, 2, -1, 1, Q("16 in")))
sketch9.addConstraint(Sketcher.Constraint("DistanceX", 1, 2, 1, 1, Q("7.875 in")))
sketch9.addConstraint(Sketcher.Constraint("DistanceY", 0, 1, 0, 2, Q("0.625 in")))
sketch9.addConstraint(Sketcher.Constraint("DistanceX", -1, 1, 0, 2, 310.690763))
pad5 = body.newObject("PartDesign::Pad", "Pad004")
pad5.Profile = sketch9
pad5.Length = Q("19.875 in")

# Sketch on XZ plane
sketch10 = body.newObject("Sketcher::SketchObject", "Sketch009")
sketch10.AttachmentSupport = (doc.getObject("XZ_Plane"), [""])
sketch10.MapMode = "FlatFace"
sketch10.AttachmentOffset = App.Placement(App.Vector(0, 0, 436.810757), App.Rotation())
sketch10.addGeometry(Part.LineSegment(App.Vector(382, -422, 0), App.Vector(182, -422, 0)), False)
sketch10.addGeometry(Part.LineSegment(App.Vector(182, -422, 0), App.Vector(182, -406, 0)), False)
sketch10.addGeometry(Part.LineSegment(App.Vector(182, -406, 0), App.Vector(382, -406, 0)), False)
sketch10.addGeometry(Part.LineSegment(App.Vector(382, -406, 0), App.Vector(382, -422, 0)), False)
sketch10.addConstraint(Sketcher.Constraint("Coincident", 0, 2, 1, 1))
sketch10.addConstraint(Sketcher.Constraint("Coincident", 1, 2, 2, 1))
sketch10.addConstraint(Sketcher.Constraint("Coincident", 2, 2, 3, 1))
sketch10.addConstraint(Sketcher.Constraint("Coincident", 3, 2, 0, 1))
sketch10.addConstraint(Sketcher.Constraint("Horizontal", 0))
sketch10.addConstraint(Sketcher.Constraint("Vertical", 1))
sketch10.addConstraint(Sketcher.Constraint("Horizontal", 2))
sketch10.addConstraint(Sketcher.Constraint("Vertical", 3))
sketch10.addConstraint(Sketcher.Constraint("DistanceY", 1, 2, -1, 1, Q("16 in")))
sketch10.addConstraint(Sketcher.Constraint("DistanceX", 0, 2, 0, 1, Q("7.875 in")))
sketch10.addConstraint(Sketcher.Constraint("DistanceY", 1, 1, 1, 2, Q("0.625 in")))
sketch10.addConstraint(Sketcher.Constraint("DistanceX", -1, 1, 0, 2, 181.619409))
pad6 = body.newObject("PartDesign::Pad", "Pad005")
pad6.Profile = sketch10
pad6.Length = Q("19.875 in")
pad6.Reversed = True

# Sketch on XY plane
sketch11 = body.newObject("Sketcher::SketchObject", "Sketch010")
sketch11.AttachmentSupport = (doc.getObject("XY_Plane"), [""])
sketch11.MapMode = "FlatFace"
sketch11.AttachmentOffset = App.Placement(App.Vector(0, 0, -26.25 * 25.4), App.Rotation())
sketch11.addGeometry(Part.LineSegment(App.Vector(154.8, 323.4, 0), App.Vector(154.8, 326.6, 0)), False)
sketch11.addGeometry(Part.LineSegment(App.Vector(154.8, 326.6, 0), App.Vector(397.5, 326.6, 0)), False)
sketch11.addGeometry(Part.LineSegment(App.Vector(397.5, 326.6, 0), App.Vector(397.5, 83.9, 0)), False)
sketch11.addGeometry(Part.LineSegment(App.Vector(397.5, 83.9, 0), App.Vector(394.3, 83.9, 0)), False)
sketch11.addGeometry(Part.LineSegment(App.Vector(394.3, 83.9, 0), App.Vector(394.3, 323.4, 0)), False)
sketch11.addGeometry(Part.LineSegment(App.Vector(394.3, 323.4, 0), App.Vector(154.8, 323.4, 0)), False)
sketch11.addConstraint(Sketcher.Constraint("Coincident", 0, 2, 1, 1))
sketch11.addConstraint(Sketcher.Constraint("Coincident", 1, 2, 2, 1))
sketch11.addConstraint(Sketcher.Constraint("Coincident", 2, 2, 3, 1))
sketch11.addConstraint(Sketcher.Constraint("Coincident", 3, 2, 4, 1))
sketch11.addConstraint(Sketcher.Constraint("Coincident", 4, 2, 5, 1))
sketch11.addConstraint(Sketcher.Constraint("Coincident", 5, 2, 0, 1))
sketch11.addConstraint(Sketcher.Constraint("Vertical", 0))
sketch11.addConstraint(Sketcher.Constraint("Horizontal", 1))
sketch11.addConstraint(Sketcher.Constraint("Vertical", 2))
sketch11.addConstraint(Sketcher.Constraint("Horizontal", 3))
sketch11.addConstraint(Sketcher.Constraint("Vertical", 4))
sketch11.addConstraint(Sketcher.Constraint("Horizontal", 5))
sketch11.addConstraint(Sketcher.Constraint("Equal", 3, 0))
sketch11.addConstraint(Sketcher.Constraint("Equal", 1, 2))
sketch11.addConstraint(Sketcher.Constraint("DistanceX", 3, 2, 3, 1, Q("0.125 in")))
sketch11.addConstraint(Sketcher.Constraint("DistanceX", 1, 1, 1, 2, 242.676519))
sketch11.addConstraint(Sketcher.Constraint("DistanceX", -1, 1, 0, 2, 154.84289))
sketch11.addConstraint(Sketcher.Constraint("DistanceY", -1, 1, 0, 2, 326.565763))
pad7 = body.newObject("PartDesign::Pad", "Pad006")
pad7.Profile = sketch11
pad7.Length = Q("0.125 in")

doc.recompute()
